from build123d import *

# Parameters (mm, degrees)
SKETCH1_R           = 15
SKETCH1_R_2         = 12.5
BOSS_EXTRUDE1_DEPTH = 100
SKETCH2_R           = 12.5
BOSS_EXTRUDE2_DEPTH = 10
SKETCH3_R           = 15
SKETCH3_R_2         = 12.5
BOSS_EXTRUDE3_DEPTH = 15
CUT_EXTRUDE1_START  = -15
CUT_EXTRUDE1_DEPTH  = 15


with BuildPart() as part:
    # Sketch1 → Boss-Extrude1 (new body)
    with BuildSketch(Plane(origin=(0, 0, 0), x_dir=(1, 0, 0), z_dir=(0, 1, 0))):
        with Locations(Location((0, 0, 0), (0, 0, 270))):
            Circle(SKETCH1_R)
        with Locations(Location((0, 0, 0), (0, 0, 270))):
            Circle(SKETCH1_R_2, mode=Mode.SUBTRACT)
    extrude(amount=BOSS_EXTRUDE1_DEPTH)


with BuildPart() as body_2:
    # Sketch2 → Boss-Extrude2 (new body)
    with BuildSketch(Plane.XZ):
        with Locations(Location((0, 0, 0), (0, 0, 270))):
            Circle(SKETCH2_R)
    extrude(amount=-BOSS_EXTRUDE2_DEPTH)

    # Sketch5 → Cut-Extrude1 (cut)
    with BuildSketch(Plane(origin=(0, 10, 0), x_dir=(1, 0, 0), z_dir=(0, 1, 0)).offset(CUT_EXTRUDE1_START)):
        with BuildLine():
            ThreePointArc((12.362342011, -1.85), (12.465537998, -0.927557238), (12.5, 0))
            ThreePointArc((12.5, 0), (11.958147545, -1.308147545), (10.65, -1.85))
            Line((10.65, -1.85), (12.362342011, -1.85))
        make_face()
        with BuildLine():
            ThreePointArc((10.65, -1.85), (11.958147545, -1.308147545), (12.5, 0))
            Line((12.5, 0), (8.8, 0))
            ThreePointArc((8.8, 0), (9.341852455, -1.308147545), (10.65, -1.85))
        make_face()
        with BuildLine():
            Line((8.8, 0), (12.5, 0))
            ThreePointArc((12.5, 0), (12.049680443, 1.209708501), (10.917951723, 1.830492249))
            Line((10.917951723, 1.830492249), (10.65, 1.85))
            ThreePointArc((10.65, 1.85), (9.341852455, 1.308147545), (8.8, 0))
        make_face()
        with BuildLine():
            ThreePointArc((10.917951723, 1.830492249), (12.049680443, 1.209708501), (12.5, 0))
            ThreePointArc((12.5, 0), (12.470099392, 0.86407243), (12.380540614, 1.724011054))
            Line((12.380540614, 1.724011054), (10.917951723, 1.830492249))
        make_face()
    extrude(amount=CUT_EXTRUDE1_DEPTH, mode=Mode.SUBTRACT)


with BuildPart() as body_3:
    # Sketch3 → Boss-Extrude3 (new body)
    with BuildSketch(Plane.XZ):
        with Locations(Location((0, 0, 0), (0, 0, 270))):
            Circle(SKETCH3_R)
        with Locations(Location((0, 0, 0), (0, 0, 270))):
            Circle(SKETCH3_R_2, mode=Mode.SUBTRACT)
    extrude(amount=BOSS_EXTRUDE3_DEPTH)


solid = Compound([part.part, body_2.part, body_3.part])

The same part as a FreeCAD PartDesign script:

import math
import FreeCAD as App
import Part
import Sketcher
from FreeCAD import Vector

doc = App.newDocument("Part")
body = doc.addObject("PartDesign::Body", "Body")

# Sketch on XZ plane
sketch1 = body.newObject("Sketcher::SketchObject", "Sketch")
sketch1.AttachmentSupport = (doc.getObject("XZ_Plane"), [""])
sketch1.MapMode = "FlatFace"
sketch1.addGeometry(Part.Circle(Vector(0, 0, 0), Vector(0, 0, 1), 15), False)
sketch1.addGeometry(Part.Circle(Vector(0, 0, 0), Vector(0, 0, 1), 12.5), False)
sketch1.addConstraint(Sketcher.Constraint("Coincident", 0, 3, -1, 1))
sketch1.addConstraint(Sketcher.Constraint("Coincident", 1, 3, -1, 1))
sketch1.addConstraint(Sketcher.Constraint("Diameter", 0, 30.0))
sketch1.addConstraint(Sketcher.Constraint("Diameter", 1, 25.0))
pad1 = body.newObject("PartDesign::Pad", "Pad")
pad1.Profile = sketch1
pad1.Length = 100
pad1.Reversed = True
body2 = doc.addObject("PartDesign::Body", "Body001")

# Sketch on XZ plane
sketch2 = body2.newObject("Sketcher::SketchObject", "Sketch001")
sketch2.AttachmentSupport = (doc.getObject("XZ_Plane001"), [""])
sketch2.MapMode = "FlatFace"
sketch2.addGeometry(Part.Circle(Vector(0, 0, 0), Vector(0, 0, 1), 12.5), False)
sketch2.addConstraint(Sketcher.Constraint("Coincident", 0, 3, -1, 1))
sketch2.addConstraint(Sketcher.Constraint("Diameter", 0, 25.0))
pad2 = body2.newObject("PartDesign::Pad", "Pad001")
pad2.Profile = sketch2
pad2.Length = 10
pad2.Reversed = True

# Sketch on XZ plane
sketch3 = body2.newObject("Sketcher::SketchObject", "Sketch002")
sketch3.AttachmentSupport = (doc.getObject("XZ_Plane001"), [""])
sketch3.MapMode = "FlatFace"
sketch3.AttachmentOffset = App.Placement(Vector(0, 0, 5), App.Rotation())
sketch3.addGeometry(Part.ArcOfCircle(Part.Circle(Vector(0, 0, 0), Vector(0, 0, 1), 12.5), math.radians(0), math.radians(8.511041)), False)
sketch3.addGeometry(Part.ArcOfCircle(Part.Circle(Vector(0, 0, 0), Vector(0, 0, 1), 12.5), math.radians(-7.927555), math.radians(0)), False)
sketch3.addGeometry(Part.LineSegment(Vector(12.380541, -1.724011, 0), Vector(10.917952, -1.830492, 0)), False)
sketch3.addGeometry(Part.LineSegment(Vector(10.917952, -1.830492, 0), Vector(10.65, -1.85, 0)), False)
sketch3.addGeometry(Part.ArcOfCircle(Part.Circle(Vector(10.65, 0, 0), Vector(0, 0, 1), 1.85), math.radians(-180), math.radians(-90)), False)
sketch3.addGeometry(Part.ArcOfCircle(Part.Circle(Vector(10.65, 0, 0), Vector(0, 0, 1), 1.85), math.radians(90), math.radians(180)), False)
sketch3.addGeometry(Part.LineSegment(Vector(10.65, 1.85, 0), Vector(12.362342, 1.85, 0)), False)
sketch3.addConstraint(Sketcher.Constraint("Tangent", 0, 1, 1, 2))
sketch3.addConstraint(Sketcher.Constraint("Coincident", 1, 1, 2, 1))
sketch3.addConstraint(Sketcher.Constraint("Coincident", 2, 2, 3, 1))
sketch3.addConstraint(Sketcher.Constraint("Coincident", 3, 2, 4, 2))
sketch3.addConstraint(Sketcher.Constraint("Tangent", 4, 1, 5, 2))
sketch3.addConstraint(Sketcher.Constraint("Tangent", 5, 1, 6, 1))
sketch3.addConstraint(Sketcher.Constraint("Coincident", 6, 2, 0, 2))
sketch3.addConstraint(Sketcher.Constraint("Horizontal", 6))
sketch3.addConstraint(Sketcher.Constraint("Coincident", 0, 3, -1, 1))
sketch3.addConstraint(Sketcher.Constraint("Equal", 0, 1))
sketch3.addConstraint(Sketcher.Constraint("Equal", 4, 5))
sketch3.addConstraint(Sketcher.Constraint("Symmetric", 3, 2, 5, 1, -1))
sketch3.addConstraint(Sketcher.Constraint("PointOnObject", 0, 1, -1))
sketch3.addConstraint(Sketcher.Constraint("PointOnObject", 4, 1, -1))
sketch3.addConstraint(Sketcher.Constraint("Parallel", 2, 3))
sketch3.addConstraint(Sketcher.Constraint("Radius", 0, 12.5))
sketch3.addConstraint(Sketcher.Constraint("Radius", 4, 1.85))
sketch3.addConstraint(Sketcher.Constraint("DistanceX", -1, 1, 4, 1, 8.8))
sketch3.addConstraint(Sketcher.Constraint("DistanceX", 6, 2, 1, 1, 0.018199))
sketch3.addConstraint(Sketcher.Constraint("Distance", 2, 1.46646))
pocket1 = body2.newObject("PartDesign::Pocket", "Pocket")
pocket1.Profile = sketch3
pocket1.Length = 15
body3 = doc.addObject("PartDesign::Body", "Body002")

# Sketch on XZ plane
sketch4 = body3.newObject("Sketcher::SketchObject", "Sketch003")
sketch4.AttachmentSupport = (doc.getObject("XZ_Plane002"), [""])
sketch4.MapMode = "FlatFace"
sketch4.addGeometry(Part.Circle(Vector(0, 0, 0), Vector(0, 0, 1), 15), False)
sketch4.addGeometry(Part.Circle(Vector(0, 0, 0), Vector(0, 0, 1), 12.5), False)
sketch4.addConstraint(Sketcher.Constraint("Coincident", 0, 3, -1, 1))
sketch4.addConstraint(Sketcher.Constraint("Coincident", 1, 3, -1, 1))
sketch4.addConstraint(Sketcher.Constraint("Diameter", 0, 30.0))
sketch4.addConstraint(Sketcher.Constraint("Diameter", 1, 25.0))
pad3 = body3.newObject("PartDesign::Pad", "Pad002")
pad3.Profile = sketch4
pad3.Length = 15

doc.recompute()
